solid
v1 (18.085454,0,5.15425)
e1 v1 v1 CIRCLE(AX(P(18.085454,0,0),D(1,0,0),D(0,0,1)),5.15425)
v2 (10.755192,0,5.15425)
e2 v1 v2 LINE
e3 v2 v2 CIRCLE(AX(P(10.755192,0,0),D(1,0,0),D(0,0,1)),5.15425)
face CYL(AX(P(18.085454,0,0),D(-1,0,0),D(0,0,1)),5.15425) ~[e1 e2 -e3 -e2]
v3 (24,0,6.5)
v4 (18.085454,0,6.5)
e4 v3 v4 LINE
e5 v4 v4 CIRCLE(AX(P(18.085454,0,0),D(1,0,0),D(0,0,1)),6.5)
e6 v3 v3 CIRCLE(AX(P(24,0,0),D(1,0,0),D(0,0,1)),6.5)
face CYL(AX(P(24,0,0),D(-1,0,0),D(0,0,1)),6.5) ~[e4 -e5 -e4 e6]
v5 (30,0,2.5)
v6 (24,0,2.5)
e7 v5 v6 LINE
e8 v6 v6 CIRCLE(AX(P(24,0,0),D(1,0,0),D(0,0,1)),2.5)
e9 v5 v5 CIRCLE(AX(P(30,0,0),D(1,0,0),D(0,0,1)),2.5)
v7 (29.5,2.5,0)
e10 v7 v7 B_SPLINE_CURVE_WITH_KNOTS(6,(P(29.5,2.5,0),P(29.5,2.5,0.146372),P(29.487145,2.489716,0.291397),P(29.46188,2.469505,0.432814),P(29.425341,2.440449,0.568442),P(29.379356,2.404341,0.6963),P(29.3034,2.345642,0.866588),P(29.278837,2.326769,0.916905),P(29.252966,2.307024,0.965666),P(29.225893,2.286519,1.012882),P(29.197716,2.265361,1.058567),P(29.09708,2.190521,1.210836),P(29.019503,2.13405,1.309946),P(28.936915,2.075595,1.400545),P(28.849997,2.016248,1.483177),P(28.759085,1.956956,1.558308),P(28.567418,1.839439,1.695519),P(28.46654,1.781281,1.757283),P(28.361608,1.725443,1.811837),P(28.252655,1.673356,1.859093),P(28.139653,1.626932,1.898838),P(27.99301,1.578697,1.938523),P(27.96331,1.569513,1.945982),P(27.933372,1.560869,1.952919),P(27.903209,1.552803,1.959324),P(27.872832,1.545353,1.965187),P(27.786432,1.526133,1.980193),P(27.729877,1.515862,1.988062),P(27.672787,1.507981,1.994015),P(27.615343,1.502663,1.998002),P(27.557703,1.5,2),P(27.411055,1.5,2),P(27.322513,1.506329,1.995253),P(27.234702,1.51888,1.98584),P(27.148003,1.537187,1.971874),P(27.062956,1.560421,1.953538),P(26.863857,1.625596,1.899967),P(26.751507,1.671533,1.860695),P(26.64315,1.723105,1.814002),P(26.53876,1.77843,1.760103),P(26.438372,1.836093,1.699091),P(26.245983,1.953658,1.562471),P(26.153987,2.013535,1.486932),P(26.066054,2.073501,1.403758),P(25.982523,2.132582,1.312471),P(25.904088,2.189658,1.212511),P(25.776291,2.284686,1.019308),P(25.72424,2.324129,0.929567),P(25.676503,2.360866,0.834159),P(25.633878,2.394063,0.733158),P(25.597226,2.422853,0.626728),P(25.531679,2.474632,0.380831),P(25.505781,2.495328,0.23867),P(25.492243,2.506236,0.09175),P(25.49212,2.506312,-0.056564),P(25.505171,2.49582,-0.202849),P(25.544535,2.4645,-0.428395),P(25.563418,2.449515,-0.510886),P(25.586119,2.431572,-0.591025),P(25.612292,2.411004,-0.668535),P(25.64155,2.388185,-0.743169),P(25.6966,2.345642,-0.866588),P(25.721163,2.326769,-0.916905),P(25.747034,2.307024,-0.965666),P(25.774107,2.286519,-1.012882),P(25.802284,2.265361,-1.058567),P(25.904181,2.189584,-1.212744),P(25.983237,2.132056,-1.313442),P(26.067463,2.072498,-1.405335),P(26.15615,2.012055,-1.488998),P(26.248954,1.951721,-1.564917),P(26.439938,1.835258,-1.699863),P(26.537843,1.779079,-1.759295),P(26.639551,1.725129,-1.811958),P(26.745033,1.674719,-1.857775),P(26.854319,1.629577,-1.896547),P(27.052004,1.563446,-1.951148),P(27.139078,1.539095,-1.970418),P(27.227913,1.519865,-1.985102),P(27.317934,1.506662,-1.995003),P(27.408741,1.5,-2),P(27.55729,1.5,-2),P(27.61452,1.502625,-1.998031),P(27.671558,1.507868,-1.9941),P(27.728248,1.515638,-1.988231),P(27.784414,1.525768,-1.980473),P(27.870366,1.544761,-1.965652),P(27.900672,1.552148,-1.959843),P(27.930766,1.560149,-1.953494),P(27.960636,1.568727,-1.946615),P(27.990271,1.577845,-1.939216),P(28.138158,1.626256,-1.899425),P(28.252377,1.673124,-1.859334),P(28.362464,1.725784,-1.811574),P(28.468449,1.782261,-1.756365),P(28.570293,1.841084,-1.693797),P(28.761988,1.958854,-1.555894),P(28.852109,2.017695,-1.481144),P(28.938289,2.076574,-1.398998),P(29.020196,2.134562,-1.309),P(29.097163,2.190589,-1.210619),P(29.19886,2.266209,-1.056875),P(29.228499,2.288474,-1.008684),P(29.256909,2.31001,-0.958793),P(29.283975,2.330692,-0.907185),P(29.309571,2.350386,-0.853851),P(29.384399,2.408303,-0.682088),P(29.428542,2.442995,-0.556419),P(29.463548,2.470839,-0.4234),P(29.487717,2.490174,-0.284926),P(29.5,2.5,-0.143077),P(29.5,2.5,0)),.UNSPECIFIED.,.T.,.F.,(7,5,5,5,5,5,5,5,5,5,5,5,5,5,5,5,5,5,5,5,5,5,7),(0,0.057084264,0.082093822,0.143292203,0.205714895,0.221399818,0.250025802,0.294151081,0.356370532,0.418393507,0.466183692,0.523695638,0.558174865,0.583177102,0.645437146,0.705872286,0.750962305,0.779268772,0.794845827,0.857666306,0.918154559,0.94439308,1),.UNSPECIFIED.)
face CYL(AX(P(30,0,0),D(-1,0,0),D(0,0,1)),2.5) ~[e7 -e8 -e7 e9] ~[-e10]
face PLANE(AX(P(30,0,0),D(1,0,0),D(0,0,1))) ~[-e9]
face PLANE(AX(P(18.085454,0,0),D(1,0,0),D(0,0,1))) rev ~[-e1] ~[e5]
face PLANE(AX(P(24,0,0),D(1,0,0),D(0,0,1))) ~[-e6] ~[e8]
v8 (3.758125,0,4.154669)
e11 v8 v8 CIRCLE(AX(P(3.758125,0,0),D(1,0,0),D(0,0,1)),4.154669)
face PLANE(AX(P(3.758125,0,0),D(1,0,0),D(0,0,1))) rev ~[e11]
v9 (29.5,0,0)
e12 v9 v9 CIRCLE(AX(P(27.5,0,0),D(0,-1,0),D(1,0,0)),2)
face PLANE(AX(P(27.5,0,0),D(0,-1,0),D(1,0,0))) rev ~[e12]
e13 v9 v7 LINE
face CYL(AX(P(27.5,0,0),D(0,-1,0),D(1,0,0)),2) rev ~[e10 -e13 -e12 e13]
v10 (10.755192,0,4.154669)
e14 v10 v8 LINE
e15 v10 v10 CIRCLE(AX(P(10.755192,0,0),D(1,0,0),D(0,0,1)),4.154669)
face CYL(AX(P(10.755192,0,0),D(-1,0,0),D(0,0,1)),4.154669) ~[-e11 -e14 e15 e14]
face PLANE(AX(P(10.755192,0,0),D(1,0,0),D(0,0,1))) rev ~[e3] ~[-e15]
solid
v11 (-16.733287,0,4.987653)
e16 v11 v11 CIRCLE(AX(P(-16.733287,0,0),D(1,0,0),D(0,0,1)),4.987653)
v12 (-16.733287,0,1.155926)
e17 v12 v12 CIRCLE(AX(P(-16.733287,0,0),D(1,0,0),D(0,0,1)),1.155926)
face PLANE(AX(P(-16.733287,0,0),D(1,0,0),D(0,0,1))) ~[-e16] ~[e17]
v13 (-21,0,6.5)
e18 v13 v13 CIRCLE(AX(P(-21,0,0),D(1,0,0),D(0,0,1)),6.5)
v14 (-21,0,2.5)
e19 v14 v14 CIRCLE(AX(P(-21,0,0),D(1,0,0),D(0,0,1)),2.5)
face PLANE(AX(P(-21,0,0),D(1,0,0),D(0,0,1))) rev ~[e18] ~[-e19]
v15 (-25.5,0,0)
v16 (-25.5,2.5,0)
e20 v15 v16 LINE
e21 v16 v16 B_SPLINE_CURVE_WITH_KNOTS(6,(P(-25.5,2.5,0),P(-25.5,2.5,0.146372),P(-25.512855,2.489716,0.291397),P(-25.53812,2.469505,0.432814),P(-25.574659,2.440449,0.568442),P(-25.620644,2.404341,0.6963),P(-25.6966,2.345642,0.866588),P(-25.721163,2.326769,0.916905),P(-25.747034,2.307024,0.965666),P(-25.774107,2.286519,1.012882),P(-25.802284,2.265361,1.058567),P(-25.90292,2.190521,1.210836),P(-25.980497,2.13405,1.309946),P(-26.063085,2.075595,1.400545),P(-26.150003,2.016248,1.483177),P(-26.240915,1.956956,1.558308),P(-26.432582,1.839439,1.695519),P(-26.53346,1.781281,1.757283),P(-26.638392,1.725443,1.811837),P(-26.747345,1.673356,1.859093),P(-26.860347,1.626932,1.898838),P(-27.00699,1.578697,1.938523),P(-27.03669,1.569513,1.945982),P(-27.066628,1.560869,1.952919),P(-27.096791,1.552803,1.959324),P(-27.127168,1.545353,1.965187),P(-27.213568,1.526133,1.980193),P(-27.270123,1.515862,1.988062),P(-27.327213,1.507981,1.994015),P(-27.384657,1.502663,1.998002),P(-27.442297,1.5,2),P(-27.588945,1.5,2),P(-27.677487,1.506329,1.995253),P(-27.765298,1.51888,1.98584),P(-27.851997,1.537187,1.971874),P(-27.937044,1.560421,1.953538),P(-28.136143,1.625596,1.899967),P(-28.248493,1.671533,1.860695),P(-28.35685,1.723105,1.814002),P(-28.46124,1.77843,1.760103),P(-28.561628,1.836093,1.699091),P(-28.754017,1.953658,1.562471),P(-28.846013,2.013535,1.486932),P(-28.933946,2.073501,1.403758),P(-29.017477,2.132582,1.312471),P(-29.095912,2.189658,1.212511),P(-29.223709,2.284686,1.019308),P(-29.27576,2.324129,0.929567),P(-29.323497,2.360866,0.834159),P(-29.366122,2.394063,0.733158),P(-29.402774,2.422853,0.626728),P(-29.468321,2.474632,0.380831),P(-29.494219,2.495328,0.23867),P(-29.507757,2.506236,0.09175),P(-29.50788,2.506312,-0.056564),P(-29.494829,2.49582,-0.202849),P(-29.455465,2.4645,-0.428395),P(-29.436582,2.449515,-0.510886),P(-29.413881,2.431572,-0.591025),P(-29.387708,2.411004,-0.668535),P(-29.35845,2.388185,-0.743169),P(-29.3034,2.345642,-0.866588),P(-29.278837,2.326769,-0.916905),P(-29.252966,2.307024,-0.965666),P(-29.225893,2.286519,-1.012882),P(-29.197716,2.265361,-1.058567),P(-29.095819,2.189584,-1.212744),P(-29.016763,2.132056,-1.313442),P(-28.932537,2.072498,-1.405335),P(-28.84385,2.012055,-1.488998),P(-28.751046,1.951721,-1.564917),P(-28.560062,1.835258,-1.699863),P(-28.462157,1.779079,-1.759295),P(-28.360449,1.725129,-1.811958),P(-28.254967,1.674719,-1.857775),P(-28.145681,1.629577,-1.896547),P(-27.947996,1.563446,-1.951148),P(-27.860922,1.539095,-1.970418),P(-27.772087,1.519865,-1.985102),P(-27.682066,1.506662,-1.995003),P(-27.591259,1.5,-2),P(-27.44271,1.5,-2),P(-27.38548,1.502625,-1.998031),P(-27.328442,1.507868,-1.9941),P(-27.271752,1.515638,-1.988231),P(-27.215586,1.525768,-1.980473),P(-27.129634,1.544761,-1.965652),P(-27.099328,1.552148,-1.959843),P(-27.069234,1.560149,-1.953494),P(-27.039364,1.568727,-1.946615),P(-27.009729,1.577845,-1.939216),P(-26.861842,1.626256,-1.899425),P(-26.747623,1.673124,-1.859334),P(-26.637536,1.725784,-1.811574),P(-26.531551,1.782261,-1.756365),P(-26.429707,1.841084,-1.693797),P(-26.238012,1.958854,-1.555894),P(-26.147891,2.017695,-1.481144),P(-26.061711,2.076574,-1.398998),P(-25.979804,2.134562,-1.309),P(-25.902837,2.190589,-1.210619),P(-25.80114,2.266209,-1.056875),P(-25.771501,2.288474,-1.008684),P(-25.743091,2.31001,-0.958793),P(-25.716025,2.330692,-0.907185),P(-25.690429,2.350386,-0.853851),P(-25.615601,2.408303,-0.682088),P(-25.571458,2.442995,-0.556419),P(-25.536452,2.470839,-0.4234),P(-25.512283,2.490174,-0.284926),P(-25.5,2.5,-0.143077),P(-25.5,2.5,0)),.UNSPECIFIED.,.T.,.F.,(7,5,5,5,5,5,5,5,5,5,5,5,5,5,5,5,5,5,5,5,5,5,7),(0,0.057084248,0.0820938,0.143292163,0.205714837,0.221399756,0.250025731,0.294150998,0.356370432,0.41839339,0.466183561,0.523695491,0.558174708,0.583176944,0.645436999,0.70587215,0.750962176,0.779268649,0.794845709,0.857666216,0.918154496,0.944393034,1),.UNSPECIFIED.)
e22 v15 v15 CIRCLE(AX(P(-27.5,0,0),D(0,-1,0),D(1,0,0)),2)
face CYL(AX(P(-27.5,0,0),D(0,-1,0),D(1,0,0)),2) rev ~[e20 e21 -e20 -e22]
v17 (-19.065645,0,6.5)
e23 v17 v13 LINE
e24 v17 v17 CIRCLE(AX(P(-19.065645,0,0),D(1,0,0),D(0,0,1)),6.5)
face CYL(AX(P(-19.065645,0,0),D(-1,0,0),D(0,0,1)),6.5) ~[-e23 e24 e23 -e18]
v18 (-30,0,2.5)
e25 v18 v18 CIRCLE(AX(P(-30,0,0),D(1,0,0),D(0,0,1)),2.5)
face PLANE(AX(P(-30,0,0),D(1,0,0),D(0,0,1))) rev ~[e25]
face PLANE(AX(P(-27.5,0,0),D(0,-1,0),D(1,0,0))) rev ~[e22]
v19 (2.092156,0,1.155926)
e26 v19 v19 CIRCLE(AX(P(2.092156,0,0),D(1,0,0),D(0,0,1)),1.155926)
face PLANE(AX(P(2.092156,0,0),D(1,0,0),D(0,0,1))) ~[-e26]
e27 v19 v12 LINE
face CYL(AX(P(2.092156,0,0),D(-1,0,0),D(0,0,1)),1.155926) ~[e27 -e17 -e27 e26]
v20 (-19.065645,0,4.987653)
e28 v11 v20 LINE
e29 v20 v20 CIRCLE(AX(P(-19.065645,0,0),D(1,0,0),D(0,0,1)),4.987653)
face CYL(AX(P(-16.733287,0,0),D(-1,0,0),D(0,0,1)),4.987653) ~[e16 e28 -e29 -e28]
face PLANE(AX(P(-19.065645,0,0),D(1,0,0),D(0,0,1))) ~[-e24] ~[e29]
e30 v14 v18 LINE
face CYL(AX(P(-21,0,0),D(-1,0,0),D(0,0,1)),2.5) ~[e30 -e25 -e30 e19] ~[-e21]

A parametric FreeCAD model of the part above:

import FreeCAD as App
import Part
import Sketcher

V = App.Vector
Q = App.Units.Quantity

doc = App.newDocument("Part")
body = doc.addObject("PartDesign::Body", "Body")
body.AllowCompound = True

# Sketch on XZ plane
sketch1 = doc.addObject("Sketcher::SketchObject", "Sketch")
body.addObject(sketch1)
sketch1.AttachmentSupport = (doc.XZ_Plane, [""])
sketch1.MapMode = "FlatFace"
sketch1.addGeometry(Part.LineSegment(V(-30, 2.5, 0), V(-30, 0, 0)), False)
sketch1.addGeometry(Part.LineSegment(V(-30, 0, 0), V(2.1, 0, 0)), False)
sketch1.addGeometry(Part.LineSegment(V(2.1, 0, 0), V(2.1, 1.2, 0)), False)
sketch1.addGeometry(Part.LineSegment(V(2.1, 1.2, 0), V(-16.7, 1.2, 0)), False)
sketch1.addGeometry(Part.LineSegment(V(-16.7, 1.2, 0), V(-16.7, 5, 0)), False)
sketch1.addGeometry(Part.LineSegment(V(-16.7, 5, 0), V(-19.1, 5, 0)), False)
sketch1.addGeometry(Part.LineSegment(V(-19.1, 5, 0), V(-19.1, 6.5, 0)), False)
sketch1.addGeometry(Part.LineSegment(V(-19.1, 6.5, 0), V(-21, 6.5, 0)), False)
sketch1.addGeometry(Part.LineSegment(V(-21, 6.5, 0), V(-21, 2.5, 0)), False)
sketch1.addGeometry(Part.LineSegment(V(-21, 2.5, 0), V(-30, 2.5, 0)), False)
sketch1.addGeometry(Part.LineSegment(V(30, 0, 0), V(30, 2.5, 0)), False)
sketch1.addGeometry(Part.LineSegment(V(30, 2.5, 0), V(24, 2.5, 0)), False)
sketch1.addGeometry(Part.LineSegment(V(24, 2.5, 0), V(24, 6.5, 0)), False)
sketch1.addGeometry(Part.LineSegment(V(24, 6.5, 0), V(18.1, 6.5, 0)), False)
sketch1.addGeometry(Part.LineSegment(V(18.1, 6.5, 0), V(18.1, 5.2, 0)), False)
sketch1.addGeometry(Part.LineSegment(V(18.1, 5.2, 0), V(10.8, 5.2, 0)), False)
sketch1.addGeometry(Part.LineSegment(V(10.8, 5.2, 0), V(10.8, 4.2, 0)), False)
sketch1.addGeometry(Part.LineSegment(V(10.8, 4.2, 0), V(3.8, 4.2, 0)), False)
sketch1.addGeometry(Part.LineSegment(V(3.8, 4.2, 0), V(3.8, 0, 0)), False)
sketch1.addGeometry(Part.LineSegment(V(3.8, 0, 0), V(30, 0, 0)), False)
sketch1.addConstraint(Sketcher.Constraint("Coincident", 0, 2, 1, 1))
sketch1.addConstraint(Sketcher.Constraint("Coincident", 1, 2, 2, 1))
sketch1.addConstraint(Sketcher.Constraint("Coincident", 2, 2, 3, 1))
sketch1.addConstraint(Sketcher.Constraint("Coincident", 3, 2, 4, 1))
sketch1.addConstraint(Sketcher.Constraint("Coincident", 4, 2, 5, 1))
sketch1.addConstraint(Sketcher.Constraint("Coincident", 5, 2, 6, 1))
sketch1.addConstraint(Sketcher.Constraint("Coincident", 6, 2, 7, 1))
sketch1.addConstraint(Sketcher.Constraint("Coincident", 7, 2, 8, 1))
sketch1.addConstraint(Sketcher.Constraint("Coincident", 8, 2, 9, 1))
sketch1.addConstraint(Sketcher.Constraint("Coincident", 9, 2, 0, 1))
sketch1.addConstraint(Sketcher.Constraint("Coincident", 10, 2, 11, 1))
sketch1.addConstraint(Sketcher.Constraint("Coincident", 11, 2, 12, 1))
sketch1.addConstraint(Sketcher.Constraint("Coincident", 12, 2, 13, 1))
sketch1.addConstraint(Sketcher.Constraint("Coincident", 13, 2, 14, 1))
sketch1.addConstraint(Sketcher.Constraint("Coincident", 14, 2, 15, 1))
sketch1.addConstraint(Sketcher.Constraint("Coincident", 15, 2, 16, 1))
sketch1.addConstraint(Sketcher.Constraint("Coincident", 16, 2, 17, 1))
sketch1.addConstraint(Sketcher.Constraint("Coincident", 17, 2, 18, 1))
sketch1.addConstraint(Sketcher.Constraint("Coincident", 18, 2, 19, 1))
sketch1.addConstraint(Sketcher.Constraint("Coincident", 19, 2, 10, 1))
sketch1.addConstraint(Sketcher.Constraint("Vertical", 0))
sketch1.addConstraint(Sketcher.Constraint("Horizontal", 1))
sketch1.addConstraint(Sketcher.Constraint("Vertical", 2))
sketch1.addConstraint(Sketcher.Constraint("Horizontal", 3))
sketch1.addConstraint(Sketcher.Constraint("Vertical", 4))
sketch1.addConstraint(Sketcher.Constraint("Horizontal", 5))
sketch1.addConstraint(Sketcher.Constraint("Vertical", 6))
sketch1.addConstraint(Sketcher.Constraint("Horizontal", 7))
sketch1.addConstraint(Sketcher.Constraint("Vertical", 8))
sketch1.addConstraint(Sketcher.Constraint("Horizontal", 9))
sketch1.addConstraint(Sketcher.Constraint("Vertical", 10))
sketch1.addConstraint(Sketcher.Constraint("Horizontal", 11))
sketch1.addConstraint(Sketcher.Constraint("Vertical", 12))
sketch1.addConstraint(Sketcher.Constraint("Horizontal", 13))
sketch1.addConstraint(Sketcher.Constraint("Vertical", 14))
sketch1.addConstraint(Sketcher.Constraint("Horizontal", 15))
sketch1.addConstraint(Sketcher.Constraint("Vertical", 16))
sketch1.addConstraint(Sketcher.Constraint("Horizontal", 17))
sketch1.addConstraint(Sketcher.Constraint("Vertical", 18))
sketch1.addConstraint(Sketcher.Constraint("Horizontal", 19))
sketch1.addConstraint(Sketcher.Constraint("Symmetric", 0, 2, 19, 2, -1, 1))
sketch1.addConstraint(Sketcher.Constraint("PointOnObject", 0, 2, -1))
sketch1.addConstraint(Sketcher.Constraint("Horizontal", 9, 2, 10, 2))
sketch1.addConstraint(Sketcher.Constraint("Horizontal", 7, 2, 12, 2))
sketch1.addConstraint(Sketcher.Constraint("DistanceX", 9, 2, 9, 1, Q("9 mm")))
sketch1.addConstraint(Sketcher.Constraint("DistanceX", 11, 2, 11, 1, Q("6 mm")))
sketch1.addConstraint(Sketcher.Constraint("DistanceY", 8, 2, 8, 1, Q("4 mm")))
sketch1.addConstraint(Sketcher.Constraint("DistanceY", 0, 2, 0, 1, Q("2.5 mm")))
sketch1.addConstraint(Sketcher.Constraint("DistanceX", 0, 2, -1, 1, Q("30 mm")))
sketch1.addConstraint(Sketcher.Constraint("DistanceX", 15, 2, 15, 1, Q("7.330262 mm")))
sketch1.addConstraint(Sketcher.Constraint("DistanceY", 14, 2, 14, 1, Q("1.34575 mm")))
sketch1.addConstraint(Sketcher.Constraint("DistanceY", 16, 2, 16, 1, Q("0.999581 mm")))
sketch1.addConstraint(Sketcher.Constraint("DistanceX", 5, 2, 2, 2, Q("21.157801 mm")))
sketch1.addConstraint(Sketcher.Constraint("DistanceX", 1, 1, 1, 2, Q("32.092156 mm")))
sketch1.addConstraint(Sketcher.Constraint("DistanceX", 3, 2, 3, 1, Q("18.825443 mm")))
sketch1.addConstraint(Sketcher.Constraint("DistanceX", 13, 2, 13, 1, Q("5.914546 mm")))
sketch1.addConstraint(Sketcher.Constraint("DistanceX", 17, 2, 17, 1, Q("6.997067 mm")))
sketch1.addConstraint(Sketcher.Constraint("DistanceY", 2, 1, 2, 2, Q("1.155926 mm")))
sketch1.addConstraint(Sketcher.Constraint("DistanceY", 4, 1, 4, 2, Q("3.831727 mm")))
revolution = doc.addObject("PartDesign::Revolution", "Revolution")
body.addObject(revolution)
revolution.Profile = sketch1
revolution.ReferenceAxis = (sketch1, ["H_Axis"])
revolution.Angle = 360

# Sketch on XZ plane
sketch2 = doc.addObject("Sketcher::SketchObject", "Sketch001")
body.addObject(sketch2)
sketch2.AttachmentSupport = (doc.XZ_Plane, [""])
sketch2.MapMode = "FlatFace"
sketch2.addGeometry(Part.Circle(V(27.5, 0, 0), V(0, 0, 1), 2), False)
sketch2.addGeometry(Part.Circle(V(-27.5, 0, 0), V(0, 0, 1), 2), False)
sketch2.addConstraint(Sketcher.Constraint("Equal", 0, 1))
sketch2.addConstraint(Sketcher.Constraint("Symmetric", 0, 3, 1, 3, -1, 1))
sketch2.addConstraint(Sketcher.Constraint("PointOnObject", 0, 3, -1))
sketch2.addConstraint(Sketcher.Constraint("Diameter", 0, Q("4 mm")))
sketch2.addConstraint(Sketcher.Constraint("DistanceX", 1, 3, 0, 3, Q("55 mm")))
pocket1 = doc.addObject("PartDesign::Pocket", "Pocket")
body.addObject(pocket1)
pocket1.Profile = sketch2
pocket1.Type = "ThroughAll"

doc.recompute()
